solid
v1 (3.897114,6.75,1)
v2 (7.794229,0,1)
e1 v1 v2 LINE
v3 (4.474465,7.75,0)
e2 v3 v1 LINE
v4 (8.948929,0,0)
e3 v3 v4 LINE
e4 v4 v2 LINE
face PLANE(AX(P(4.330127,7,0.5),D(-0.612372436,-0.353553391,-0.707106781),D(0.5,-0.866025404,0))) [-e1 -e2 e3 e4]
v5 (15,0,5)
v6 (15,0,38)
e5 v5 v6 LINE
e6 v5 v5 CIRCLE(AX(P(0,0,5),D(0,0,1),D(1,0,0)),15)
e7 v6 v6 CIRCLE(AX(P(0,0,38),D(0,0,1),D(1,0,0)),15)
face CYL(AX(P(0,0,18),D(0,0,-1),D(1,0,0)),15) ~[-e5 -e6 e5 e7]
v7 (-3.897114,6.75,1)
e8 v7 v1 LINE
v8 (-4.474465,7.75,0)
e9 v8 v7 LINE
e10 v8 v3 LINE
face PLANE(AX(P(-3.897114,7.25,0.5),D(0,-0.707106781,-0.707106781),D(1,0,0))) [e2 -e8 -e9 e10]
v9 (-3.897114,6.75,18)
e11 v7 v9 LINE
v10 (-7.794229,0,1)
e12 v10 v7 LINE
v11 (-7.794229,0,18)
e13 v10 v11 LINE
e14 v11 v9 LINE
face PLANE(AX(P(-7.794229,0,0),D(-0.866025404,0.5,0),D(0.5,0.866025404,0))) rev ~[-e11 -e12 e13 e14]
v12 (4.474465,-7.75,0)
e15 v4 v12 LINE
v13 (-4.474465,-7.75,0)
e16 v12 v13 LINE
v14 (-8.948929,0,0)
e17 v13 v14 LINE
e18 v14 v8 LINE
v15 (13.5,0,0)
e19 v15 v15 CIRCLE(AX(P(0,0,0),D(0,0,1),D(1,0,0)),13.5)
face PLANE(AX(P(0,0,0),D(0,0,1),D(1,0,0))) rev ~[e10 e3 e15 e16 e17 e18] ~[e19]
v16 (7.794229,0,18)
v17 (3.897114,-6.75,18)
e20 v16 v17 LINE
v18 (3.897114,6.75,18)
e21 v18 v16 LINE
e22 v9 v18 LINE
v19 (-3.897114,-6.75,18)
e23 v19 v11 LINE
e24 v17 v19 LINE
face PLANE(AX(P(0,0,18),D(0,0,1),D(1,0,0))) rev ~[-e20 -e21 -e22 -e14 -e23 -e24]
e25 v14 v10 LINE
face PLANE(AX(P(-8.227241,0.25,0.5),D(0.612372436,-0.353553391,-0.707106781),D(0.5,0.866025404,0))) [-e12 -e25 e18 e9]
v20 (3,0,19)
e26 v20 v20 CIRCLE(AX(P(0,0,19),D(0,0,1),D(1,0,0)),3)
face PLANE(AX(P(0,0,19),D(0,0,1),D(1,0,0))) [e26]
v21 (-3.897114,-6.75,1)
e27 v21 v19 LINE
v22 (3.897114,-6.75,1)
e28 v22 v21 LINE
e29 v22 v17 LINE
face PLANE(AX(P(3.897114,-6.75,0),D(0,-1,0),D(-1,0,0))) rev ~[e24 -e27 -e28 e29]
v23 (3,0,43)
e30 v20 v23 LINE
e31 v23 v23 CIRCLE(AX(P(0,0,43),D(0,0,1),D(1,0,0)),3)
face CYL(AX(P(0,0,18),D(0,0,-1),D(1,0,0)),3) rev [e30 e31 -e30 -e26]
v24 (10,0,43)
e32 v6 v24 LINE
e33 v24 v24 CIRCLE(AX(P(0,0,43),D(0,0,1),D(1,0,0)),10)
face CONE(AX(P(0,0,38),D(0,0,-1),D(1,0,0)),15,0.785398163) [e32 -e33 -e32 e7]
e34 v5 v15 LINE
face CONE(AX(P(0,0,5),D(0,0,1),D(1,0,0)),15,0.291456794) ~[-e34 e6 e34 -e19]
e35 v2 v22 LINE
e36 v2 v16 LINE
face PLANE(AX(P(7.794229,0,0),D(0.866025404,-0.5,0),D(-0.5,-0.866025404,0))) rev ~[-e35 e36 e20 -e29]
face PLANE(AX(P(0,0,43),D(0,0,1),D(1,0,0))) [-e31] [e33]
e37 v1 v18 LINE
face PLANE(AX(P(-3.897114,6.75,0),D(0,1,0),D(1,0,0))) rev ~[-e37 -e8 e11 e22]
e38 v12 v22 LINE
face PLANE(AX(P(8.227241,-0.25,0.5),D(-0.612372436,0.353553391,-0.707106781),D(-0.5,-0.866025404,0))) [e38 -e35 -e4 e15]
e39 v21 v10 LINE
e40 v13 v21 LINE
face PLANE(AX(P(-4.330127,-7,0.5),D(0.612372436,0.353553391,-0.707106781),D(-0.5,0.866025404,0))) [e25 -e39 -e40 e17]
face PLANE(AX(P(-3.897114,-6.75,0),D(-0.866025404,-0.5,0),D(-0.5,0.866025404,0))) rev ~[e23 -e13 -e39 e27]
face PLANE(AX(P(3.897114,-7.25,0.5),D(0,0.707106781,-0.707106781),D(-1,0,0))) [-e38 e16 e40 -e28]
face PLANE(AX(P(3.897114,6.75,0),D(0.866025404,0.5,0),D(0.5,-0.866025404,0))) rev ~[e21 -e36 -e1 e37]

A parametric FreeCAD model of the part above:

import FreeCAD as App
import Part
import Sketcher

V = App.Vector
Q = App.Units.Quantity


def edges_at(feature, points):
    """Names of the edges that pass closest to the given points."""
    edges = feature.Shape.Edges
    near = lambda p: min(range(len(edges)), key=lambda i: edges[i].distToShape(Part.Vertex(*p))[0])
    return sorted({f"Edge{near(p) + 1}" for p in points})


def add_polygon(sketch, points):
    """Adds a closed chain of lines whose ends are joined by coincident constraints."""
    first, n = sketch.GeometryCount, len(points)
    for a, b in zip(points, points[1:] + points[:1]):
        sketch.addGeometry(Part.LineSegment(App.Vector(*a, 0), App.Vector(*b, 0)), False)
    for i in range(n):
        sketch.addConstraint(Sketcher.Constraint("Coincident", first + i, 2, first + (i + 1) % n, 1))

doc = App.newDocument("Part")
body = doc.addObject("PartDesign::Body", "Body")

# Sketch on XY plane
sketch1 = body.newObject("Sketcher::SketchObject", "Sketch")
sketch1.AttachmentSupport = (doc.getObject("XY_Plane"), [""])
sketch1.MapMode = "FlatFace"
sketch1.addGeometry(Part.Circle(V(0, 0, 0), V(0, 0, 1), 15), False)  # 0
add_polygon(sketch1, [(-4, -7), (-8, 0), (-4, 7), (4, 7), (8, 0), (4, -7)])  # lines 1-6
sketch1.addConstraint([
    Sketcher.Constraint("Horizontal", 3),
    Sketcher.Constraint("Horizontal", 6),
    Sketcher.Constraint("Coincident", 0, 3, -1, 1),
    Sketcher.Constraint("Symmetric", 1, 2, 4, 2, -1, 1),
    Sketcher.Constraint("Symmetric", 2, 2, 5, 2, -1, 1),
    Sketcher.Constraint("PointOnObject", 1, 2, -1),
    Sketcher.Constraint("Parallel", 1, 4),
    Sketcher.Constraint("Vertical", 3, 2, 5, 2),
    Sketcher.Constraint("Diameter", 0, 30.0),
    Sketcher.Constraint("Angle", 1, Q("120 deg")),
    Sketcher.Constraint("DistanceY", 5, 2, 3, 2, 13.5),
    Sketcher.Constraint("DistanceX", 3, 1, 3, 2, 7.794229),
])
pad1 = body.newObject("PartDesign::Pad", "Pad")
pad1.Profile = sketch1
pad1.Length = 18

# Sketch on XY plane
sketch2 = body.newObject("Sketcher::SketchObject", "Sketch001")
sketch2.AttachmentSupport = (doc.getObject("XY_Plane"), [""])
sketch2.MapMode = "FlatFace"
sketch2.AttachmentOffset = App.Placement(V(0, 0, 18), App.Rotation())
sketch2.addGeometry([
    Part.Circle(V(0, 0, 0), V(0, 0, 1), 15),
    Part.Circle(V(0, 0, 0), V(0, 0, 1), 3),
], False)
sketch2.addConstraint([
    Sketcher.Constraint("Coincident", 0, 3, -1, 1),
    Sketcher.Constraint("Coincident", 1, 3, -1, 1),
    Sketcher.Constraint("Diameter", 0, 30.0),
    Sketcher.Constraint("Diameter", 1, 6.0),
])
pad2 = body.newObject("PartDesign::Pad", "Pad001")
pad2.Profile = sketch2
pad2.Length = 25
doc.recompute()

chamfer = body.newObject("PartDesign::Chamfer", "Chamfer")
chamfer.Base = (pad2, edges_at(pad2, [(-15, 0, 43)]))
chamfer.Size = 5
doc.recompute()

chamfer2 = body.newObject("PartDesign::Chamfer", "Chamfer001")
chamfer2.Base = (chamfer, edges_at(chamfer, [
    (0, -6.75, 0),
    (5.846, -3.375, 0),
    (5.846, 3.375, 0),
    (0, 6.75, 0),
    (-5.846, 3.375, 0),
    (-5.846, -3.375, 0),
]))
chamfer2.Size = 1

# Sketch on XY plane
sketch3 = body.newObject("Sketcher::SketchObject", "Sketch002")
sketch3.AttachmentSupport = (doc.getObject("XY_Plane"), [""])
sketch3.MapMode = "FlatFace"
sketch3.AttachmentOffset = App.Placement(V(0, 0, 18), App.Rotation())
sketch3.addGeometry(Part.Circle(V(0, 0, 0), V(0, 0, 1), 3), False)
sketch3.addConstraint([
    Sketcher.Constraint("Coincident", 0, 3, -1, 1),
    Sketcher.Constraint("Diameter", 0, 6.0),
])
pad3 = body.newObject("PartDesign::Pad", "Pad002")
pad3.Profile = sketch3
pad3.Length = 1
doc.recompute()

chamfer3 = body.newObject("PartDesign::Chamfer", "Chamfer002")
chamfer3.Base = (pad3, edges_at(pad3, [(-15, 0, 0)]))
chamfer3.ChamferType = "Two distances"
chamfer3.Size = 5
chamfer3.Size2 = 1.5
chamfer3.FlipDirection = True

doc.recompute()
